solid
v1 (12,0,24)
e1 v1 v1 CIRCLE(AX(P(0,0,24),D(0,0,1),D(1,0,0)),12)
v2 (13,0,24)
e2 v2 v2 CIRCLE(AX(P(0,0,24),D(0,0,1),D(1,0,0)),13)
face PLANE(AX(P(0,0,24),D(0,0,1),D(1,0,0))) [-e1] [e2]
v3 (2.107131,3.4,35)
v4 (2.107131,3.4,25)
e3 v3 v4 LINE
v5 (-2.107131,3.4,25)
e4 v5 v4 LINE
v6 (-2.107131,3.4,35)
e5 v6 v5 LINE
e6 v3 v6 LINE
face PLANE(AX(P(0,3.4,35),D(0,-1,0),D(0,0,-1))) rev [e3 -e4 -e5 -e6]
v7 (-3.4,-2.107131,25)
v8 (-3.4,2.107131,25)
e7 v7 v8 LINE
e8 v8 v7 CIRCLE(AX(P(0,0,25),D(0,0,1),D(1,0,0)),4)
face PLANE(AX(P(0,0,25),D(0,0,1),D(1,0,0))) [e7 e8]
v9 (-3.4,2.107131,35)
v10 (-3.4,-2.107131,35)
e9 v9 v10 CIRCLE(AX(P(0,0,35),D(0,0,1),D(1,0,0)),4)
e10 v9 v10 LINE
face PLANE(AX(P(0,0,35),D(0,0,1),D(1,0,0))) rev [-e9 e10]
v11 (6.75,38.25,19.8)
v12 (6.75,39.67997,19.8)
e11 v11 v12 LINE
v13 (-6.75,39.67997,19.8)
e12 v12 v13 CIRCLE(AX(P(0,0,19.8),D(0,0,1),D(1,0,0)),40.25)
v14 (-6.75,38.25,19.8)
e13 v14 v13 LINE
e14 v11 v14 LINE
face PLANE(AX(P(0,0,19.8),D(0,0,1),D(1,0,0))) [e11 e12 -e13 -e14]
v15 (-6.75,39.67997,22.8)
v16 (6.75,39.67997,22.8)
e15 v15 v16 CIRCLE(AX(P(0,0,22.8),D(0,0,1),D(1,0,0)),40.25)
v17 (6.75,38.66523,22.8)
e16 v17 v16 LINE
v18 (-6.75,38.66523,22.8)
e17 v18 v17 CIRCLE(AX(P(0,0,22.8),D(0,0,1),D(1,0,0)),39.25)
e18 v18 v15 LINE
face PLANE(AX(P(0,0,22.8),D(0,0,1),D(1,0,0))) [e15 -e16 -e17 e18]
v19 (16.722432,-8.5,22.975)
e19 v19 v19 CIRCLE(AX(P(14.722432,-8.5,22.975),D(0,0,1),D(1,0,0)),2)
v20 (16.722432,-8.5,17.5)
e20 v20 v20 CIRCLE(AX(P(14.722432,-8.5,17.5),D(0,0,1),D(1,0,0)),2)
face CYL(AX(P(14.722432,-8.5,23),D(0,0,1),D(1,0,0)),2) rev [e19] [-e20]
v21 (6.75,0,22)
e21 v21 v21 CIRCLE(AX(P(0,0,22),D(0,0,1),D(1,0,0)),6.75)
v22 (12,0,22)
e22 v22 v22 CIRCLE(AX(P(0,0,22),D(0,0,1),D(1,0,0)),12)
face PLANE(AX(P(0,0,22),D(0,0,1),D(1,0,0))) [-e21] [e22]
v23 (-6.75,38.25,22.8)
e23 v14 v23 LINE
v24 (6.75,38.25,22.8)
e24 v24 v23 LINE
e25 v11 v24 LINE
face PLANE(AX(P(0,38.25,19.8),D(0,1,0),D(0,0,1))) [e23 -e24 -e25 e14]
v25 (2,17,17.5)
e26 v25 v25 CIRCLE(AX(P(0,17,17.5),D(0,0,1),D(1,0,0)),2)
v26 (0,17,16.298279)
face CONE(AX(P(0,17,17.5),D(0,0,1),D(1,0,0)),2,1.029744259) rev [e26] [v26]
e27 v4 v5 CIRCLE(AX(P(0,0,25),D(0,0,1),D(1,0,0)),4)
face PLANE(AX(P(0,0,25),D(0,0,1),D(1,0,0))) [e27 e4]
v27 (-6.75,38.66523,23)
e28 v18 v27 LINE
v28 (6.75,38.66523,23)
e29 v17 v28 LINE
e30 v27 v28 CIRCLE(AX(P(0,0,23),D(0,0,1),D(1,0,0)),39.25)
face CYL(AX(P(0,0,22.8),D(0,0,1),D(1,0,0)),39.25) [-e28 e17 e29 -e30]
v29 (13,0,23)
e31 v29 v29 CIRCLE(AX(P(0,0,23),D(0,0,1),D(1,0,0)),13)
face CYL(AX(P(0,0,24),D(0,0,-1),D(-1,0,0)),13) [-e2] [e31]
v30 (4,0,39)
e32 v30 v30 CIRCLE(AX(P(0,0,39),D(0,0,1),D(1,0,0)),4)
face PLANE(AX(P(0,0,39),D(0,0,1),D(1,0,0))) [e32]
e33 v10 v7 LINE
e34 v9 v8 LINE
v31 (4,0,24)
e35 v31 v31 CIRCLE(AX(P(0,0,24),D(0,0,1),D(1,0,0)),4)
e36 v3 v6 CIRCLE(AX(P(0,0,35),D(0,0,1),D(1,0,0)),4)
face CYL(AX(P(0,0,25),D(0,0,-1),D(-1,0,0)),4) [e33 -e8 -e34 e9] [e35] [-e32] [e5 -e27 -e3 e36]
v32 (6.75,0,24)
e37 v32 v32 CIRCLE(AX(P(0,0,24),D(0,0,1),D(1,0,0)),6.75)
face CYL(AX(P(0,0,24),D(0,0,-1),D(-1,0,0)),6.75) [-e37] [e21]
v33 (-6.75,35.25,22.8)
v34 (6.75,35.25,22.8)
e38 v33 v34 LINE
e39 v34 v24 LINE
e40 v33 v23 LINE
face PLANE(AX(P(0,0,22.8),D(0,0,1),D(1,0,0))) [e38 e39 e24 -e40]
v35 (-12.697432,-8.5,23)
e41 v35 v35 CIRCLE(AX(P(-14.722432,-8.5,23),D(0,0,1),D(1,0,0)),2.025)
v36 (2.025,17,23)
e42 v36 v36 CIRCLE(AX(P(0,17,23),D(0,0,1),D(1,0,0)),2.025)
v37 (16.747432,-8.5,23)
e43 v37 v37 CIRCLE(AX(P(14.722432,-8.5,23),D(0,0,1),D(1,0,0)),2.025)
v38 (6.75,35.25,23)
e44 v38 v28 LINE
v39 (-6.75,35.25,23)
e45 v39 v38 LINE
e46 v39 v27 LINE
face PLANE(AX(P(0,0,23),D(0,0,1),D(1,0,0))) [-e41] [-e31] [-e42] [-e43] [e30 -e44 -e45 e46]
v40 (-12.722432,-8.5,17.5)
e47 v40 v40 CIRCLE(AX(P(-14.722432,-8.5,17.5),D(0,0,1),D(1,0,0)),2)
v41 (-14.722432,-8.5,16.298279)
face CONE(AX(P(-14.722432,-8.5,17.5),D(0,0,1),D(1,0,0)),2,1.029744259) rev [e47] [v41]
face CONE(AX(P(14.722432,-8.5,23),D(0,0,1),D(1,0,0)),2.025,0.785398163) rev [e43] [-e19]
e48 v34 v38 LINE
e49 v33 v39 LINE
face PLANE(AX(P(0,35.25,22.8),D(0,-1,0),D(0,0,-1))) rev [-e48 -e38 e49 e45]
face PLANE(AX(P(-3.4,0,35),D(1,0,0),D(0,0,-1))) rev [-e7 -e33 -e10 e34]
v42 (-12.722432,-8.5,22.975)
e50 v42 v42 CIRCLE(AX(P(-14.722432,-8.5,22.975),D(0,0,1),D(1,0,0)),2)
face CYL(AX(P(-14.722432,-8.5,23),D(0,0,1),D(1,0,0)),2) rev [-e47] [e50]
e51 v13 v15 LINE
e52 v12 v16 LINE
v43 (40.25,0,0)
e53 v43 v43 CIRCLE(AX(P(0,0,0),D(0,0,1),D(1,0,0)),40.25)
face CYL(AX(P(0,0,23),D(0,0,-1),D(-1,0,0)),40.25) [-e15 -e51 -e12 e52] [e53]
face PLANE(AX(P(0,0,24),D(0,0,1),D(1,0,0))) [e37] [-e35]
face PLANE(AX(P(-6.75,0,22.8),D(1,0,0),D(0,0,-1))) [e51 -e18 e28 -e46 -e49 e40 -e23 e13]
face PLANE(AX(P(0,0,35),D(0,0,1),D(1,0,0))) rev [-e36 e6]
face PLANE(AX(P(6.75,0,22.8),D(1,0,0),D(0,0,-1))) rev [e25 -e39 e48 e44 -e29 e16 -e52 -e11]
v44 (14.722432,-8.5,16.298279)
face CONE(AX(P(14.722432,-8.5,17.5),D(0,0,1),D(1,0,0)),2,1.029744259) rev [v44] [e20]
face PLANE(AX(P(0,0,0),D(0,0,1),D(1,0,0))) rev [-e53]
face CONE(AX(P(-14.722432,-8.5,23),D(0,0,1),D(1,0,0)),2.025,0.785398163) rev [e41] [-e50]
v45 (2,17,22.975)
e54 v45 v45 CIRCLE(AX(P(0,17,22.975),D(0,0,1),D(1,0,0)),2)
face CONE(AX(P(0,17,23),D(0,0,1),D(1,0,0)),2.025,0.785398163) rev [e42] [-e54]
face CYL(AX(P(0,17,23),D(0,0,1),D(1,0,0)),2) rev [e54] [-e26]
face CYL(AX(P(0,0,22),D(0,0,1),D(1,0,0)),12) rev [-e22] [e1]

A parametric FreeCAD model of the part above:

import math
import FreeCAD as App
import Part
import Sketcher

V = App.Vector
Q = App.Units.Quantity

doc = App.newDocument("Part")
body = doc.addObject("PartDesign::Body", "Body")

# Sketch on XY plane
sketch1 = doc.addObject("Sketcher::SketchObject", "Sketch")
body.addObject(sketch1)
sketch1.AttachmentSupport = (doc.XY_Plane, [""])
sketch1.MapMode = "FlatFace"
sketch1.addGeometry(Part.Circle(V(0, 0, 0), V(0, 0, 1), 40), False)
sketch1.addConstraint([
    Sketcher.Constraint("Coincident", 0, 3, -1, 1),
    Sketcher.Constraint("Diameter", 0, Q("80.5 mm")),
])
pad1 = doc.addObject("PartDesign::Pad", "Pad")
body.addObject(pad1)
pad1.Profile = sketch1
pad1.Length = 23

# Sketch on XY plane
sketch2 = doc.addObject("Sketcher::SketchObject", "Sketch001")
body.addObject(sketch2)
sketch2.AttachmentSupport = (doc.XY_Plane, [""])
sketch2.MapMode = "FlatFace"
sketch2.AttachmentOffset = App.Placement(V(0, 0, 23), App.Rotation())
sketch2.addGeometry(Part.Circle(V(0, 0, 0), V(0, 0, 1), 12), False)
sketch2.addConstraint([
    Sketcher.Constraint("Coincident", 0, 3, -1, 1),
    Sketcher.Constraint("Diameter", 0, Q("24 mm")),
])
pocket1 = doc.addObject("PartDesign::Pocket", "Pocket")
body.addObject(pocket1)
pocket1.Profile = sketch2
pocket1.Length = 1

# Sketch on XY plane
sketch3 = doc.addObject("Sketcher::SketchObject", "Sketch002")
body.addObject(sketch3)
sketch3.AttachmentSupport = (doc.XY_Plane, [""])
sketch3.MapMode = "FlatFace"
sketch3.AttachmentOffset = App.Placement(V(0, 0, 24), App.Rotation())
sketch3.addGeometry([
    Part.Circle(V(0, 0, 0), V(0, 0, 1), 13),
    Part.Circle(V(0, 0, 0), V(0, 0, 1), 12),
], False)
sketch3.addConstraint([
    Sketcher.Constraint("Coincident", 0, 3, -1, 1),
    Sketcher.Constraint("Coincident", 1, 3, -1, 1),
    Sketcher.Constraint("Diameter", 0, Q("26 mm")),
    Sketcher.Constraint("Diameter", 1, Q("24 mm")),
])
pad2 = doc.addObject("PartDesign::Pad", "Pad001")
body.addObject(pad2)
pad2.Profile = sketch3
pad2.Length = 1
pad2.Reversed = True

# Sketch on XY plane
sketch4 = doc.addObject("Sketcher::SketchObject", "Sketch003")
body.addObject(sketch4)
sketch4.AttachmentSupport = (doc.XY_Plane, [""])
sketch4.MapMode = "FlatFace"
sketch4.AttachmentOffset = App.Placement(V(0, 0, 22), App.Rotation())
sketch4.addGeometry(Part.Circle(V(0, 0, 0), V(0, 0, 1), 7), False)
sketch4.addConstraint([
    Sketcher.Constraint("Coincident", 0, 3, -1, 1),
    Sketcher.Constraint("Diameter", 0, Q("13.5 mm")),
])
pad3 = doc.addObject("PartDesign::Pad", "Pad002")
body.addObject(pad3)
pad3.Profile = sketch4
pad3.Length = 2

# Sketch on XY plane
sketch5 = doc.addObject("Sketcher::SketchObject", "Sketch004")
body.addObject(sketch5)
sketch5.AttachmentSupport = (doc.XY_Plane, [""])
sketch5.MapMode = "FlatFace"
sketch5.AttachmentOffset = App.Placement(V(0, 0, 24), App.Rotation())
sketch5.addGeometry(Part.Circle(V(0, 0, 0), V(0, 0, 1), 4), False)
sketch5.addConstraint([
    Sketcher.Constraint("Coincident", 0, 3, -1, 1),
    Sketcher.Constraint("Diameter", 0, Q("8 mm")),
])
pad4 = doc.addObject("PartDesign::Pad", "Pad003")
body.addObject(pad4)
pad4.Profile = sketch5
pad4.Length = 1

# Sketch on XY plane
sketch6 = doc.addObject("Sketcher::SketchObject", "Sketch005")
body.addObject(sketch6)
sketch6.AttachmentSupport = (doc.XY_Plane, [""])
sketch6.MapMode = "FlatFace"
sketch6.AttachmentOffset = App.Placement(V(0, 0, 24), App.Rotation())
sketch6.addGeometry([
    Part.ArcOfCircle(Part.Circle(V(0, 0, 0), V(0, 0, 1), 4), math.radians(-90), math.radians(0)),  # 0
    Part.ArcOfCircle(Part.Circle(V(0, 0, 0), V(0, 0, 1), 4), math.radians(0), math.radians(58)),  # 1
    Part.LineSegment(V(2.1, 3.4, 0), V(-2.1, 3.4, 0)),  # 2
    Part.ArcOfCircle(Part.Circle(V(0, 0, 0), V(0, 0, 1), 4), math.radians(122), math.radians(148)),  # 3
    Part.LineSegment(V(-3.4, 2.1, 0), V(-3.4, -2.1, 0)),  # 4
    Part.ArcOfCircle(Part.Circle(V(0, 0, 0), V(0, 0, 1), 4), math.radians(-148), math.radians(-90)),  # 5
], False)
sketch6.addConstraint([
    Sketcher.Constraint("Tangent", 0, 2, 1, 1),
    Sketcher.Constraint("Coincident", 1, 2, 2, 1),
    Sketcher.Constraint("Coincident", 2, 2, 3, 1),
    Sketcher.Constraint("Coincident", 3, 2, 4, 1),
    Sketcher.Constraint("Coincident", 4, 2, 5, 1),
    Sketcher.Constraint("Tangent", 5, 2, 0, 1),
    Sketcher.Constraint("Horizontal", 2),
    Sketcher.Constraint("Vertical", 4),
    Sketcher.Constraint("Coincident", 0, 3, -1, 1),
    Sketcher.Constraint("Coincident", 3, 3, -1, 1),
    Sketcher.Constraint("Equal", 0, 1),
    Sketcher.Constraint("Equal", 1, 3),
    Sketcher.Constraint("Equal", 3, 5),
    Sketcher.Constraint("PointOnObject", 0, 2, -1),
    Sketcher.Constraint("PointOnObject", 5, 2, -2),
    Sketcher.Constraint("Equal", 2, 4),
    Sketcher.Constraint("Radius", 0, Q("4 mm")),
    Sketcher.Constraint("DistanceY", -1, 1, 1, 2, Q("3.4 mm")),
])
pad5 = doc.addObject("PartDesign::Pad", "Pad004")
body.addObject(pad5)
pad5.Profile = sketch6
pad5.Length = 11

# Sketch on XY plane
sketch7 = doc.addObject("Sketcher::SketchObject", "Sketch006")
body.addObject(sketch7)
sketch7.AttachmentSupport = (doc.XY_Plane, [""])
sketch7.MapMode = "FlatFace"
sketch7.AttachmentOffset = App.Placement(V(0, 0, 35), App.Rotation())
sketch7.addGeometry(Part.Circle(V(0, 0, 0), V(0, 0, 1), 4), False)
sketch7.addConstraint([
    Sketcher.Constraint("Coincident", 0, 3, -1, 1),
    Sketcher.Constraint("Diameter", 0, Q("8 mm")),
])
pad6 = doc.addObject("PartDesign::Pad", "Pad005")
body.addObject(pad6)
pad6.Profile = sketch7
pad6.Length = 4

# Sketch on XY plane
sketch8 = doc.addObject("Sketcher::SketchObject", "Sketch007")
body.addObject(sketch8)
sketch8.AttachmentSupport = (doc.XY_Plane, [""])
sketch8.MapMode = "FlatFace"
sketch8.AttachmentOffset = App.Placement(V(0, 0, 22.8), App.Rotation())
sketch8.addGeometry([
    Part.Circle(V(0, 0, 0), V(0, 0, 1), 40),
    Part.Circle(V(0, 0, 0), V(0, 0, 1), 39),
], False)
sketch8.addConstraint([
    Sketcher.Constraint("Coincident", 0, 3, -1, 1),
    Sketcher.Constraint("Coincident", 1, 3, -1, 1),
    Sketcher.Constraint("Diameter", 0, Q("80.5 mm")),
    Sketcher.Constraint("Diameter", 1, Q("78.5 mm")),
])
pocket2 = doc.addObject("PartDesign::Pocket", "Pocket001")
body.addObject(pocket2)
pocket2.Profile = sketch8
pocket2.Length = 0.2
pocket2.Reversed = True

# Sketch on XY plane
sketch9 = doc.addObject("Sketcher::SketchObject", "Sketch008")
body.addObject(sketch9)
sketch9.AttachmentSupport = (doc.XY_Plane, [""])
sketch9.MapMode = "FlatFace"
sketch9.AttachmentOffset = App.Placement(V(0, 0, 22.8), App.Rotation())
sketch9.addGeometry([
    Part.ArcOfCircle(Part.Circle(V(0, 0, 0), V(0, 0, 1), 39.2), math.radians(80.1), math.radians(90)),  # 0
    Part.ArcOfCircle(Part.Circle(V(0, 0, 0), V(0, 0, 1), 39.2), math.radians(90), math.radians(99.9)),  # 1
    Part.LineSegment(V(-6.8, 38.7, 0), V(-6.8, 35.2, 0)),  # 2
    Part.LineSegment(V(-6.8, 35.2, 0), V(6.8, 35.2, 0)),  # 3
    Part.LineSegment(V(6.8, 35.2, 0), V(6.8, 38.7, 0)),  # 4
], False)
sketch9.addConstraint([
    Sketcher.Constraint("Tangent", 0, 2, 1, 1),
    Sketcher.Constraint("Coincident", 1, 2, 2, 1),
    Sketcher.Constraint("Coincident", 2, 2, 3, 1),
    Sketcher.Constraint("Coincident", 3, 2, 4, 1),
    Sketcher.Constraint("Coincident", 4, 2, 0, 1),
    Sketcher.Constraint("Vertical", 2),
    Sketcher.Constraint("Horizontal", 3),
    Sketcher.Constraint("Vertical", 4),
    Sketcher.Constraint("Coincident", 0, 3, -1, 1),
    Sketcher.Constraint("Equal", 0, 1),
    Sketcher.Constraint("PointOnObject", 0, 2, -2),
    Sketcher.Constraint("Horizontal", 1, 2, 4, 2),
    Sketcher.Constraint("Radius", 0, Q("39.25 mm")),
    Sketcher.Constraint("DistanceX", 3, 1, 3, 2, Q("13.5 mm")),
    Sketcher.Constraint("DistanceY", 2, 2, 0, 2, Q("4 mm")),
])
pocket3 = doc.addObject("PartDesign::Pocket", "Pocket002")
body.addObject(pocket3)
pocket3.Profile = sketch9
pocket3.Length = 0.2
pocket3.Reversed = True

# Sketch on XY plane
sketch10 = doc.addObject("Sketcher::SketchObject", "Sketch009")
body.addObject(sketch10)
sketch10.AttachmentSupport = (doc.XY_Plane, [""])
sketch10.MapMode = "FlatFace"
sketch10.AttachmentOffset = App.Placement(V(0, 0, 19.8), App.Rotation())
sketch10.addGeometry([
    Part.LineSegment(V(-6.8, 38.2, 0), V(6.8, 38.2, 0)),  # 0
    Part.LineSegment(V(6.8, 38.2, 0), V(6.8, 39.7, 0)),  # 1
    Part.ArcOfCircle(Part.Circle(V(0, 0, 0), V(0, 0, 1), 40.2), math.radians(80.35), math.radians(88.76)),  # 2
    Part.ArcOfCircle(Part.Circle(V(0, 0, 0), V(0, 0, 1), 40.2), math.radians(88.76), math.radians(91.24)),  # 3
    Part.ArcOfCircle(Part.Circle(V(0, 0, 0), V(0, 0, 1), 40.2), math.radians(91.24), math.radians(99.65)),  # 4
    Part.LineSegment(V(-6.8, 39.7, 0), V(-6.8, 38.2, 0)),  # 5
], False)
sketch10.addConstraint([
    Sketcher.Constraint("Coincident", 0, 2, 1, 1),
    Sketcher.Constraint("Coincident", 1, 2, 2, 1),
    Sketcher.Constraint("Tangent", 2, 2, 3, 1),
    Sketcher.Constraint("Tangent", 3, 2, 4, 1),
    Sketcher.Constraint("Coincident", 4, 2, 5, 1),
    Sketcher.Constraint("Coincident", 5, 2, 0, 1),
    Sketcher.Constraint("Horizontal", 0),
    Sketcher.Constraint("Vertical", 1),
    Sketcher.Constraint("Vertical", 5),
    Sketcher.Constraint("Coincident", 2, 3, -1, 1),
    Sketcher.Constraint("Coincident", 4, 3, -1, 1),
    Sketcher.Constraint("Horizontal", 2, 2, 3, 2),
    Sketcher.Constraint("Horizontal", 1, 2, 4, 2),
    Sketcher.Constraint("Radius", 2, Q("40.25 mm")),
    Sketcher.Constraint("DistanceX", 0, 1, 0, 2, Q("13.5 mm")),
    Sketcher.Constraint("DistanceY", -1, 1, 0, 2, Q("38.25 mm")),
    Sketcher.Constraint("DistanceX", -1, 1, 2, 2, Q("0.870628 mm")),
])
pocket4 = doc.addObject("PartDesign::Pocket", "Pocket003")
body.addObject(pocket4)
pocket4.Profile = sketch10
pocket4.Length = 3
pocket4.Reversed = True

# Sketch on XY plane
sketch11 = doc.addObject("Sketcher::SketchObject", "Sketch010")
body.addObject(sketch11)
sketch11.AttachmentSupport = (doc.XY_Plane, [""])
sketch11.MapMode = "FlatFace"
sketch11.AttachmentOffset = App.Placement(V(0, 0, 23), App.Rotation())
sketch11.addGeometry([
    Part.Circle(V(0, 17, 0), V(0, 0, 1), 2),
    Part.Circle(V(14.7, -8.5, 0), V(0, 0, 1), 2),
    Part.Circle(V(-14.7, -8.5, 0), V(0, 0, 1), 2),
], False)
sketch11.addConstraint([
    Sketcher.Constraint("Equal", 0, 1),
    Sketcher.Constraint("Equal", 1, 2),
    Sketcher.Constraint("Symmetric", 1, 3, 2, 3, -2),
    Sketcher.Constraint("PointOnObject", 0, 3, -2),
    Sketcher.Constraint("Diameter", 0, Q("4 mm")),
    Sketcher.Constraint("DistanceY", -1, 1, 0, 3, Q("17 mm")),
    Sketcher.Constraint("DistanceY", 1, 3, -1, 1, Q("8.5 mm")),
    Sketcher.Constraint("DistanceX", -1, 1, 1, 3, Q("14.722432 mm")),
])
doc.recompute()
hole = doc.addObject("PartDesign::Hole", "Hole")
body.addObject(hole)
hole.Profile = sketch11
hole.ThreadType = "None"
hole.Diameter = 4
hole.DepthType = "Dimension"
hole.Depth = 5.5
hole.DrillPoint = "Angled"
hole.DrillPointAngle = 118
hole.HoleCutType = "Countersink"
hole.HoleCutDiameter = 4.05
hole.HoleCutCountersinkAngle = 90

doc.recompute()
